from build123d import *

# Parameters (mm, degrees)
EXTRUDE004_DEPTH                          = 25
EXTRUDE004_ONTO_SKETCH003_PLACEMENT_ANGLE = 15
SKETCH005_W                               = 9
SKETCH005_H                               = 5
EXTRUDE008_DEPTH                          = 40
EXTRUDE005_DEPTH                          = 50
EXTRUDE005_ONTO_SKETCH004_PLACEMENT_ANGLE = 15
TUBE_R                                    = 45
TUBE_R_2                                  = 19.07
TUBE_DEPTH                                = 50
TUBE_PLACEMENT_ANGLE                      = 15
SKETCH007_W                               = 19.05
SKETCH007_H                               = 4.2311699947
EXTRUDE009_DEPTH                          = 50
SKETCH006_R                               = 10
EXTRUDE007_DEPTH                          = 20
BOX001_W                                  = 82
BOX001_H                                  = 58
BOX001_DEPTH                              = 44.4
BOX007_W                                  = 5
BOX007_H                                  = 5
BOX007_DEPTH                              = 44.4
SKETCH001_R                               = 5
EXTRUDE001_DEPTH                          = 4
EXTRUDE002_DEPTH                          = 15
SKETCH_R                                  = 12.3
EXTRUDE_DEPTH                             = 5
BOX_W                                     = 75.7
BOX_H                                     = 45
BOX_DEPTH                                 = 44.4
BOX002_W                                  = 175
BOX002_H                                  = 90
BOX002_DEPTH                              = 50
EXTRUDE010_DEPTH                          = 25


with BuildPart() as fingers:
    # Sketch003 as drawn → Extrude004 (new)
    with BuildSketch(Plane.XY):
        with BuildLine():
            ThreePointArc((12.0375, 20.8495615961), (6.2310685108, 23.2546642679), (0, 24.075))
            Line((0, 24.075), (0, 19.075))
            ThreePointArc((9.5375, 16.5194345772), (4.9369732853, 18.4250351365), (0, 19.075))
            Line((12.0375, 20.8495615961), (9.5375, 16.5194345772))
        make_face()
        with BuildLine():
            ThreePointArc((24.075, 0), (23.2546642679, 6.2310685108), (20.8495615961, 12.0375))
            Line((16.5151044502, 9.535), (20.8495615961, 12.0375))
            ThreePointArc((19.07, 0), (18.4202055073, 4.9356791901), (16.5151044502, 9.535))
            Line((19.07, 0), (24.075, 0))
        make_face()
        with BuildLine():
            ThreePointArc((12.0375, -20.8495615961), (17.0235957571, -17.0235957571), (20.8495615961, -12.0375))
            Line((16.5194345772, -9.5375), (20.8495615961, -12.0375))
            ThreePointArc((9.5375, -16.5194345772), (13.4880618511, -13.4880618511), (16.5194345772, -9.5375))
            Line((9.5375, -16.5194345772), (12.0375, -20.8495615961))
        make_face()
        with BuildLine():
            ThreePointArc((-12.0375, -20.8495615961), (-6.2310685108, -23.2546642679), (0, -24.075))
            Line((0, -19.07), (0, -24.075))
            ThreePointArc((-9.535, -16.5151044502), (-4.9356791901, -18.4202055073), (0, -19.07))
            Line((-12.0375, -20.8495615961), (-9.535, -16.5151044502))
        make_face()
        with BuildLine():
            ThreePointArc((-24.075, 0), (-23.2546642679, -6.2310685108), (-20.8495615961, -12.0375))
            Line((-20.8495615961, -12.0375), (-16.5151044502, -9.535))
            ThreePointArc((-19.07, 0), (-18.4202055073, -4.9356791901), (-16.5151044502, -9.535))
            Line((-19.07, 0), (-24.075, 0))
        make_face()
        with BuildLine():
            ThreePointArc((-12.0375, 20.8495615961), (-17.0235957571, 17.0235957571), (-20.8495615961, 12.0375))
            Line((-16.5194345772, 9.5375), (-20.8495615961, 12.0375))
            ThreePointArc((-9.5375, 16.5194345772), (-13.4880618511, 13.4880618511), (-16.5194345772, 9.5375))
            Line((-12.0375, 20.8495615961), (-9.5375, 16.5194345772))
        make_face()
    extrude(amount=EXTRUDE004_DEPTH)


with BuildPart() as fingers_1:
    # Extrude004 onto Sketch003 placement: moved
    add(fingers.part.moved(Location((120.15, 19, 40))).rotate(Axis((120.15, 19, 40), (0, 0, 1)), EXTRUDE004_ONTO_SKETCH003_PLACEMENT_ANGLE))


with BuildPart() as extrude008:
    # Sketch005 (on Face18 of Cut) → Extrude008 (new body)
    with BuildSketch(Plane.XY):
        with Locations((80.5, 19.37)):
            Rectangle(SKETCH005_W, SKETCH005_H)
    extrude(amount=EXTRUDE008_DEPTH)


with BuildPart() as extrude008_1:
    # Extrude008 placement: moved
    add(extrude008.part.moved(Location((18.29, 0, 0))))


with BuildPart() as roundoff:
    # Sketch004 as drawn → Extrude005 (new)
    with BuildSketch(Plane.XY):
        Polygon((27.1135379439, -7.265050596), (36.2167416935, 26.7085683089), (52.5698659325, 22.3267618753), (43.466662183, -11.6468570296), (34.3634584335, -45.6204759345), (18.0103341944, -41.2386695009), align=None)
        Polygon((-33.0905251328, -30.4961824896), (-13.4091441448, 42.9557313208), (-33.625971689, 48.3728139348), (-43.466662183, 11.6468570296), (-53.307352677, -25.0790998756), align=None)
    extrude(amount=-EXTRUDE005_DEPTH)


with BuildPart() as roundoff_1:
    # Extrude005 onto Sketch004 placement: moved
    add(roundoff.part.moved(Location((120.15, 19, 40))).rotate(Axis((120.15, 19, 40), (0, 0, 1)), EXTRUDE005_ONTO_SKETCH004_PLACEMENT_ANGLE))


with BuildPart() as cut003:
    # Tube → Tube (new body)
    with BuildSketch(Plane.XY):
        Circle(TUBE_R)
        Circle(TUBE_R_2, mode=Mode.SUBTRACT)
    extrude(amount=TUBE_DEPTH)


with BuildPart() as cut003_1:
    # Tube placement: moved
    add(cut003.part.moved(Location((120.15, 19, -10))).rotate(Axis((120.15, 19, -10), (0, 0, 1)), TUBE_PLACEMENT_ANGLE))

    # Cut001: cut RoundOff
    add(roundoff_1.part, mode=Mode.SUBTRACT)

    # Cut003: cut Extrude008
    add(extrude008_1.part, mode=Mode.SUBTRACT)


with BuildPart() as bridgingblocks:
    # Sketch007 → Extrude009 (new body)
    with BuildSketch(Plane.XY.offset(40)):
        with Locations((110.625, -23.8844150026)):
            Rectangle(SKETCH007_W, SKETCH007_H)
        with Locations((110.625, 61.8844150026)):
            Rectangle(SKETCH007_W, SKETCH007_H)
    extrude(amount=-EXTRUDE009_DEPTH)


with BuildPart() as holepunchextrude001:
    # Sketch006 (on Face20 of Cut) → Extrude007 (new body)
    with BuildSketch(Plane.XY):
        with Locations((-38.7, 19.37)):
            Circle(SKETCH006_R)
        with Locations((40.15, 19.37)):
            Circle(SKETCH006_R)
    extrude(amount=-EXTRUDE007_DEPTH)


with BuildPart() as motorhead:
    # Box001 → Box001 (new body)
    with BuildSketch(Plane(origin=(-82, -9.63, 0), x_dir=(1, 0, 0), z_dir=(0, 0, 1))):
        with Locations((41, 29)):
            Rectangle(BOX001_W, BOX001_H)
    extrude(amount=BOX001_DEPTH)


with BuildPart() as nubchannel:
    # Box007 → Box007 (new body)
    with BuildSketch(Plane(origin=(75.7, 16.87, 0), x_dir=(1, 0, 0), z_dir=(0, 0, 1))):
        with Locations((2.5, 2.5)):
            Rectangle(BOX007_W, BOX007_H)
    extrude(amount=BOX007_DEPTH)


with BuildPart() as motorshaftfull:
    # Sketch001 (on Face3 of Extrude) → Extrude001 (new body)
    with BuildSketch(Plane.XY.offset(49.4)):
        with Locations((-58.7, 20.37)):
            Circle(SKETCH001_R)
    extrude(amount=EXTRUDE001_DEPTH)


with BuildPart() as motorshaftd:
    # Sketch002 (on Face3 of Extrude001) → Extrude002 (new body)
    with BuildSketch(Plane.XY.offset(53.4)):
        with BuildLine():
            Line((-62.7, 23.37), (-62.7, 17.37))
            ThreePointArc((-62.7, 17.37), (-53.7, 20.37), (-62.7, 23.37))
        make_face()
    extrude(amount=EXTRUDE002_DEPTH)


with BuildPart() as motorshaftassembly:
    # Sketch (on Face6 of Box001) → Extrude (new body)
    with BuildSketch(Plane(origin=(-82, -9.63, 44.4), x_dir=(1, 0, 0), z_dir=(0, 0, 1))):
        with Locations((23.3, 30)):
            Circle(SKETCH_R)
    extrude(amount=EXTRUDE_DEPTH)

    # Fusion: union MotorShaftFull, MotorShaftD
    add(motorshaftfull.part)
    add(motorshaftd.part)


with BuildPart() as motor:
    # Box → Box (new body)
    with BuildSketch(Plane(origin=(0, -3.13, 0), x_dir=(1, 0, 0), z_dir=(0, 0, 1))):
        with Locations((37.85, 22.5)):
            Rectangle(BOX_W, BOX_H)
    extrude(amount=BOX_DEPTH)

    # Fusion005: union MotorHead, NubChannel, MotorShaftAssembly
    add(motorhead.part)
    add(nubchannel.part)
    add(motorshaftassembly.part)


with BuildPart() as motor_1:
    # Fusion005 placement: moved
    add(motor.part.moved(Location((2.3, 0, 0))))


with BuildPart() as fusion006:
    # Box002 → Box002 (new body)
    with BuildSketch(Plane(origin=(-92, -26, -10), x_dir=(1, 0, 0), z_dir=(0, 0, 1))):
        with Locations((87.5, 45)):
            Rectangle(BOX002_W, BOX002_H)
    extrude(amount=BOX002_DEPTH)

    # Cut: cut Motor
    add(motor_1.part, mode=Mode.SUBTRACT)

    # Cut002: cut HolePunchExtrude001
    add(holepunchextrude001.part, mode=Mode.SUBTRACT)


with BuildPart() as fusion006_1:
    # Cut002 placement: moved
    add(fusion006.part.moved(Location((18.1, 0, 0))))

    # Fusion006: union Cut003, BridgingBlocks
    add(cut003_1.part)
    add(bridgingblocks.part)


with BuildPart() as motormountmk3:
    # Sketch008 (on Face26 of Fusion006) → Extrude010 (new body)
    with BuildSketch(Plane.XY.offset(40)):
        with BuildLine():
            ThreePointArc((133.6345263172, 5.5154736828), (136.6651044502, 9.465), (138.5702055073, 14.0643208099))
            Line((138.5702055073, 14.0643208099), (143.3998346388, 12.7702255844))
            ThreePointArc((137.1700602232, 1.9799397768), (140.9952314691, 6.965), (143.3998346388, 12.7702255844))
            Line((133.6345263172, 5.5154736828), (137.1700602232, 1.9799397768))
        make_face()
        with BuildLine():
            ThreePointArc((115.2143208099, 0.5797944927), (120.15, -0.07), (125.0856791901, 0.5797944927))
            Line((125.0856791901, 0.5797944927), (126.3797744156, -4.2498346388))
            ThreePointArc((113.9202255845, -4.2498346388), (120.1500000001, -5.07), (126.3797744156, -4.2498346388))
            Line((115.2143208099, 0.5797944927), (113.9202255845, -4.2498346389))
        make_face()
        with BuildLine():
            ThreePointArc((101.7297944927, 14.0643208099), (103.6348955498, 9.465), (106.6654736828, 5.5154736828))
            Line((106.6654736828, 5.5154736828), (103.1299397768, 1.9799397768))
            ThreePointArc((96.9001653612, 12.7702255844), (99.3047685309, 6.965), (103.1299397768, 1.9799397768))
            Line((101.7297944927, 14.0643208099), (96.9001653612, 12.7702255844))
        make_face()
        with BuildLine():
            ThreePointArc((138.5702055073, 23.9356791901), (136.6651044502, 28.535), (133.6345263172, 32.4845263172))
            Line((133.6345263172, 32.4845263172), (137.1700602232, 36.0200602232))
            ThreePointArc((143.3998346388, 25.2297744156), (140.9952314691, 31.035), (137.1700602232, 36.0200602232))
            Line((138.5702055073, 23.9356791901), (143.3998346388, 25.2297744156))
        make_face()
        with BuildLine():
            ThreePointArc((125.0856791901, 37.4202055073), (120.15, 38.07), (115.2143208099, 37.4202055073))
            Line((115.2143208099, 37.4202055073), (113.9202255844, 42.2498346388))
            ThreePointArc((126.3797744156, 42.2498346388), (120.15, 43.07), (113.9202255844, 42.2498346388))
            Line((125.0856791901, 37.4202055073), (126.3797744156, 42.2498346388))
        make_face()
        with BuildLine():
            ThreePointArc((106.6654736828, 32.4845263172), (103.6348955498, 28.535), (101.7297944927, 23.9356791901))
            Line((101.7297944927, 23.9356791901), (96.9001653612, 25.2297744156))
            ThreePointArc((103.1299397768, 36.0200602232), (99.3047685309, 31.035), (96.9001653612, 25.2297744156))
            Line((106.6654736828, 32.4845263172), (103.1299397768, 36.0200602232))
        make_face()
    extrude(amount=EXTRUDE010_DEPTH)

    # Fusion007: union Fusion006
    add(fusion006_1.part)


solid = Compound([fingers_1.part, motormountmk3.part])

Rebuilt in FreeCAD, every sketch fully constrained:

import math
import FreeCAD as App
import Part
import Sketcher
from FreeCAD import Vector
Q = App.Units.Quantity


def add_polygon(sketch, points):
    """Adds a closed chain of lines whose ends are joined by coincident constraints."""
    first, n = sketch.GeometryCount, len(points)
    for a, b in zip(points, points[1:] + points[:1]):
        sketch.addGeometry(Part.LineSegment(App.Vector(*a, 0), App.Vector(*b, 0)), False)
    for i in range(n):
        sketch.addConstraint(Sketcher.Constraint("Coincident", first + i, 2, first + (i + 1) % n, 1))

doc = App.newDocument("Part")
body = doc.addObject("PartDesign::Body", "Body")
body.AllowCompound = True

# Sketch on XY plane
sketch1 = body.newObject("Sketcher::SketchObject", "Sketch")
sketch1.AttachmentSupport = (doc.getObject("XY_Plane"), [""])
sketch1.MapMode = "FlatFace"
sketch1.addGeometry([
    Part.ArcOfCircle(Part.Circle(Vector(0, 0, 0), Vector(0, 0, 1), 24), math.radians(60), math.radians(90)),  # 0
    Part.LineSegment(Vector(0, 24, 0), Vector(0, 19, 0)),  # 1
    Part.ArcOfCircle(Part.Circle(Vector(0, 0, 0), Vector(0, 0, 1), 19), math.radians(60), math.radians(90)),  # 2
    Part.LineSegment(Vector(10, 17, 0), Vector(12, 21, 0)),  # 3
    Part.ArcOfCircle(Part.Circle(Vector(0, 0, 0), Vector(0, 0, 1), 24), math.radians(0), math.radians(30)),  # 4
    Part.LineSegment(Vector(21, 12, 0), Vector(17, 10, 0)),  # 5
    Part.ArcOfCircle(Part.Circle(Vector(0, 0, 0), Vector(0, 0, 1), 19), math.radians(0), math.radians(30)),  # 6
    Part.LineSegment(Vector(19, 0, 0), Vector(24, 0, 0)),  # 7
    Part.ArcOfCircle(Part.Circle(Vector(0, 0, 0), Vector(0, 0, 1), 24), math.radians(-60), math.radians(-30)),  # 8
    Part.LineSegment(Vector(21, -12, 0), Vector(17, -10, 0)),  # 9
    Part.ArcOfCircle(Part.Circle(Vector(0, 0, 0), Vector(0, 0, 1), 19), math.radians(-60), math.radians(-30)),  # 10
    Part.LineSegment(Vector(10, -17, 0), Vector(12, -21, 0)),  # 11
    Part.ArcOfCircle(Part.Circle(Vector(0, 0, 0), Vector(0, 0, 1), 24), math.radians(-120), math.radians(-90)),  # 12
    Part.LineSegment(Vector(0, -24, 0), Vector(0, -19, 0)),  # 13
    Part.ArcOfCircle(Part.Circle(Vector(0, 0, 0), Vector(0, 0, 1), 19), math.radians(-120), math.radians(-90)),  # 14
    Part.LineSegment(Vector(-10, -17, 0), Vector(-12, -21, 0)),  # 15
    Part.ArcOfCircle(Part.Circle(Vector(0, 0, 0), Vector(0, 0, 1), 24), math.radians(180), math.radians(210)),  # 16
    Part.LineSegment(Vector(-21, -12, 0), Vector(-17, -10, 0)),  # 17
    Part.ArcOfCircle(Part.Circle(Vector(0, 0, 0), Vector(0, 0, 1), 19), math.radians(180), math.radians(210)),  # 18
    Part.LineSegment(Vector(-19, 0, 0), Vector(-24, 0, 0)),  # 19
    Part.ArcOfCircle(Part.Circle(Vector(0, 0, 0), Vector(0, 0, 1), 24), math.radians(120), math.radians(150)),  # 20
    Part.LineSegment(Vector(-21, 12, 0), Vector(-17, 10, 0)),  # 21
    Part.ArcOfCircle(Part.Circle(Vector(0, 0, 0), Vector(0, 0, 1), 19), math.radians(120), math.radians(150)),  # 22
    Part.LineSegment(Vector(-10, 17, 0), Vector(-12, 21, 0)),  # 23
], False)
sketch1.addConstraint([
    Sketcher.Constraint("Coincident", 0, 2, 1, 1),
    Sketcher.Constraint("Coincident", 1, 2, 2, 2),
    Sketcher.Constraint("Coincident", 2, 1, 3, 1),
    Sketcher.Constraint("Coincident", 3, 2, 0, 1),
    Sketcher.Constraint("Coincident", 4, 2, 5, 1),
    Sketcher.Constraint("Coincident", 5, 2, 6, 2),
    Sketcher.Constraint("Coincident", 6, 1, 7, 1),
    Sketcher.Constraint("Coincident", 7, 2, 4, 1),
    Sketcher.Constraint("Coincident", 8, 2, 9, 1),
    Sketcher.Constraint("Coincident", 9, 2, 10, 2),
    Sketcher.Constraint("Coincident", 10, 1, 11, 1),
    Sketcher.Constraint("Coincident", 11, 2, 8, 1),
    Sketcher.Constraint("Coincident", 12, 2, 13, 1),
    Sketcher.Constraint("Coincident", 13, 2, 14, 2),
    Sketcher.Constraint("Coincident", 14, 1, 15, 1),
    Sketcher.Constraint("Coincident", 15, 2, 12, 1),
    Sketcher.Constraint("Coincident", 16, 2, 17, 1),
    Sketcher.Constraint("Coincident", 17, 2, 18, 2),
    Sketcher.Constraint("Coincident", 18, 1, 19, 1),
    Sketcher.Constraint("Coincident", 19, 2, 16, 1),
    Sketcher.Constraint("Coincident", 20, 2, 21, 1),
    Sketcher.Constraint("Coincident", 21, 2, 22, 2),
    Sketcher.Constraint("Coincident", 22, 1, 23, 1),
    Sketcher.Constraint("Coincident", 23, 2, 20, 1),
    Sketcher.Constraint("Vertical", 1),
    Sketcher.Constraint("Horizontal", 7),
    Sketcher.Constraint("Vertical", 13),
    Sketcher.Constraint("Horizontal", 19),
    Sketcher.Constraint("Coincident", 0, 3, -1, 1),
    Sketcher.Constraint("Coincident", 2, 3, -1, 1),
    Sketcher.Constraint("Coincident", 4, 3, -1, 1),
    Sketcher.Constraint("Coincident", 6, 3, -1, 1),
    Sketcher.Constraint("Coincident", 8, 3, -1, 1),
    Sketcher.Constraint("Coincident", 10, 3, -1, 1),
    Sketcher.Constraint("Coincident", 12, 3, -1, 1),
    Sketcher.Constraint("Coincident", 14, 3, -1, 1),
    Sketcher.Constraint("Coincident", 16, 3, -1, 1),
    Sketcher.Constraint("Coincident", 18, 3, -1, 1),
    Sketcher.Constraint("Coincident", 20, 3, -1, 1),
    Sketcher.Constraint("Coincident", 22, 3, -1, 1),
    Sketcher.Constraint("Equal", 0, 4),
    Sketcher.Constraint("Equal", 4, 8),
    Sketcher.Constraint("Equal", 2, 10),
    Sketcher.Constraint("Equal", 8, 12),
    Sketcher.Constraint("Equal", 6, 14),
    Sketcher.Constraint("Equal", 12, 16),
    Sketcher.Constraint("Equal", 14, 18),
    Sketcher.Constraint("Equal", 16, 20),
    Sketcher.Constraint("Equal", 10, 22),
    Sketcher.Constraint("PointOnObject", 0, 2, -2),
    Sketcher.Constraint("PointOnObject", 6, 1, -1),
    Sketcher.Constraint("PointOnObject", 12, 2, -2),
    Sketcher.Constraint("PointOnObject", 18, 1, -1),
    Sketcher.Constraint("Perpendicular", 3, 9),
    Sketcher.Constraint("Perpendicular", 5, 11),
    Sketcher.Constraint("Perpendicular", 9, 15),
    Sketcher.Constraint("Perpendicular", 11, 17),
    Sketcher.Constraint("Perpendicular", 15, 21),
    Sketcher.Constraint("Perpendicular", 17, 23),
    Sketcher.Constraint("Horizontal", 11, 2, 15, 2),
    Sketcher.Constraint("Horizontal", 8, 2, 16, 2),
    Sketcher.Constraint("Horizontal", 4, 2, 20, 2),
    Sketcher.Constraint("Horizontal", 2, 1, 22, 1),
    Sketcher.Constraint("Horizontal", 3, 2, 23, 2),
    Sketcher.Constraint("Vertical", 4, 2, 8, 2),
    Sketcher.Constraint("Vertical", 2, 1, 10, 1),
    Sketcher.Constraint("DistanceY", 1, 2, 1, 1, Q("5 mm")),
    Sketcher.Constraint("Angle", 3, Q("60 deg")),
    Sketcher.Constraint("Radius", 6, Q("19.07 mm")),
    Sketcher.Constraint("Radius", 0, Q("24.075 mm")),
    Sketcher.Constraint("DistanceX", 19, 2, 14, 1, Q("14.54 mm")),
    Sketcher.Constraint("DistanceY", -1, 1, 5, 2, Q("9.535 mm")),
])
pad1 = body.newObject("PartDesign::Pad", "Pad")
pad1.Profile = sketch1
pad1.Length = 25
body2 = doc.addObject("PartDesign::Body", "Body001")
body2.AllowCompound = True
doc.recompute()

body.Placement = App.Placement(Vector(120.15, 19, 40), App.Rotation(Vector(0, 0, 1), 15))
boolean = body2.newObject("PartDesign::Boolean", "Boolean")
boolean.Type = "Fuse"
boolean.addObjects([body])
body3 = doc.addObject("PartDesign::Body", "Body002")

# Sketch on XY plane
sketch2 = body3.newObject("Sketcher::SketchObject", "Sketch001")
sketch2.AttachmentSupport = (doc.getObject("XY_Plane002"), [""])
sketch2.MapMode = "FlatFace"
add_polygon(sketch2, [(76, 22), (76, 17), (85, 17), (85, 22)])  # lines 0-3
sketch2.addConstraint([
    Sketcher.Constraint("Vertical", 0),
    Sketcher.Constraint("Horizontal", 1),
    Sketcher.Constraint("Vertical", 2),
    Sketcher.Constraint("Horizontal", 3),
    Sketcher.Constraint("DistanceX", 1, 1, 1, 2, Q("9 mm")),
    Sketcher.Constraint("DistanceY", 0, 2, 0, 1, Q("5 mm")),
    Sketcher.Constraint("DistanceX", -1, 1, 0, 2, Q("76 mm")),
    Sketcher.Constraint("DistanceY", -1, 1, 0, 2, Q("16.87 mm")),
])
pad2 = body3.newObject("PartDesign::Pad", "Pad001")
pad2.Profile = sketch2
pad2.Length = 40
body4 = doc.addObject("PartDesign::Body", "Body003")
doc.recompute()

body3.Placement = App.Placement(Vector(18.29, 0, 0), App.Rotation(Vector(0, 0, 1), 0))
boolean2 = body4.newObject("PartDesign::Boolean", "Boolean001")
boolean2.Type = "Fuse"
boolean2.addObjects([body3])
body5 = doc.addObject("PartDesign::Body", "Body004")
body5.AllowCompound = True

# Sketch on XY plane
sketch3 = body5.newObject("Sketcher::SketchObject", "Sketch002")
sketch3.AttachmentSupport = (doc.getObject("XY_Plane004"), [""])
sketch3.MapMode = "FlatFace"
add_polygon(sketch3, [(36, 27), (27, -7), (18, -41), (34, -46), (53, 22)])  # lines 0-4
add_polygon(sketch3, [(-33, -30), (-13, 43), (-34, 48), (-53, -25)])  # lines 5-8
sketch3.addConstraint([
    Sketcher.Constraint("Parallel", 0, 1),
    Sketcher.Constraint("Perpendicular", 1, 2),
    Sketcher.Constraint("Perpendicular", 2, 3),
    Sketcher.Constraint("Perpendicular", 3, 4),
    Sketcher.Constraint("Perpendicular", 4, 5),
    Sketcher.Constraint("Perpendicular", 5, 6),
    Sketcher.Constraint("Perpendicular", 6, 7),
    Sketcher.Constraint("Perpendicular", 7, 8),
    Sketcher.Constraint("Equal", 0, 1),
    Sketcher.Constraint("Angle", 0, Q("-105 deg")),
    Sketcher.Constraint("Distance", 2, Q("16.93 mm")),
    Sketcher.Constraint("Distance", 6, Q("20.93 mm")),
    Sketcher.Constraint("DistanceY", 7, 2, -1, 1, Q("25.0791 mm")),
    Sketcher.Constraint("DistanceY", 1, 2, 5, 2, Q("84.194401 mm")),
    Sketcher.Constraint("Distance", 0, Q("35.172078 mm")),
    Sketcher.Constraint("DistanceY", 0, 2, -1, 1, Q("7.265051 mm")),
    Sketcher.Constraint("DistanceX", -1, 1, 2, 2, Q("34.363458 mm")),
    Sketcher.Constraint("DistanceX", 6, 2, -1, 1, Q("33.625972 mm")),
])
pad3 = body5.newObject("PartDesign::Pad", "Pad002")
pad3.Profile = sketch3
pad3.Length = 50
pad3.Reversed = True
body6 = doc.addObject("PartDesign::Body", "Body005")
body6.AllowCompound = True
doc.recompute()

body5.Placement = App.Placement(Vector(120.15, 19, 40), App.Rotation(Vector(0, 0, 1), 15))
boolean3 = body6.newObject("PartDesign::Boolean", "Boolean002")
boolean3.Type = "Fuse"
boolean3.addObjects([body5])
body7 = doc.addObject("PartDesign::Body", "Body006")

# Sketch on XY plane
sketch4 = body7.newObject("Sketcher::SketchObject", "Sketch003")
sketch4.AttachmentSupport = (doc.getObject("XY_Plane006"), [""])
sketch4.MapMode = "FlatFace"
sketch4.addGeometry([
    Part.Circle(Vector(0, 0, 0), Vector(0, 0, 1), 45),
    Part.Circle(Vector(0, 0, 0), Vector(0, 0, 1), 19),
], False)
sketch4.addConstraint([
    Sketcher.Constraint("Coincident", 0, 3, -1, 1),
    Sketcher.Constraint("Coincident", 1, 3, -1, 1),
    Sketcher.Constraint("Diameter", 0, Q("90 mm")),
    Sketcher.Constraint("Diameter", 1, Q("38.14 mm")),
])
pad4 = body7.newObject("PartDesign::Pad", "Pad003")
pad4.Profile = sketch4
pad4.Length = 50
body8 = doc.addObject("PartDesign::Body", "Body007")
doc.recompute()

body7.Placement = App.Placement(Vector(120.15, 19, -10), App.Rotation(Vector(0, 0, 1), 15))
boolean4 = body8.newObject("PartDesign::Boolean", "Boolean003")
boolean4.Type = "Fuse"
boolean4.addObjects([body7])
doc.recompute()

boolean5 = body8.newObject("PartDesign::Boolean", "Boolean004")
boolean5.Type = "Cut"
boolean5.addObjects([body6])
doc.recompute()

boolean6 = body8.newObject("PartDesign::Boolean", "Boolean005")
boolean6.Type = "Cut"
boolean6.addObjects([body4])
body9 = doc.addObject("PartDesign::Body", "Body008")
body9.AllowCompound = True

# Sketch on XY plane
sketch5 = body9.newObject("Sketcher::SketchObject", "Sketch004")
sketch5.AttachmentSupport = (doc.getObject("XY_Plane008"), [""])
sketch5.MapMode = "FlatFace"
sketch5.AttachmentOffset = App.Placement(Vector(0, 0, 40), App.Rotation())
add_polygon(sketch5, [(101.1, -21.8), (101.1, -26), (120.2, -26), (120.2, -21.8)])  # lines 0-3
add_polygon(sketch5, [(101.1, 64), (101.1, 59.8), (120.2, 59.8), (120.2, 64)])  # lines 4-7
sketch5.addConstraint([
    Sketcher.Constraint("Vertical", 0),
    Sketcher.Constraint("Horizontal", 1),
    Sketcher.Constraint("Vertical", 2),
    Sketcher.Constraint("Horizontal", 3),
    Sketcher.Constraint("Vertical", 4),
    Sketcher.Constraint("Horizontal", 5),
    Sketcher.Constraint("Vertical", 6),
    Sketcher.Constraint("Horizontal", 7),
    Sketcher.Constraint("Vertical", 3, 2, 4, 2),
    Sketcher.Constraint("Vertical", 2, 2, 5, 2),
    Sketcher.Constraint("Equal", 2, 4),
    Sketcher.Constraint("DistanceY", 0, 2, -1, 1, Q("26 mm")),
    Sketcher.Constraint("DistanceY", -1, 1, 6, 2, Q("64 mm")),
    Sketcher.Constraint("DistanceX", 1, 1, 1, 2, Q("19.05 mm")),
    Sketcher.Constraint("DistanceX", -1, 1, 0, 2, Q("101.1 mm")),
    Sketcher.Constraint("DistanceY", 0, 2, 0, 1, Q("4.23117 mm")),
])
pad5 = body9.newObject("PartDesign::Pad", "Pad004")
pad5.Profile = sketch5
pad5.Length = 50
pad5.Reversed = True
body10 = doc.addObject("PartDesign::Body", "Body009")
body10.AllowCompound = True

# Sketch on XY plane
sketch6 = body10.newObject("Sketcher::SketchObject", "Sketch005")
sketch6.AttachmentSupport = (doc.getObject("XY_Plane009"), [""])
sketch6.MapMode = "FlatFace"
sketch6.addGeometry([
    Part.Circle(Vector(-39, 19, 0), Vector(0, 0, 1), 10),
    Part.Circle(Vector(40, 19, 0), Vector(0, 0, 1), 10),
], False)
sketch6.addConstraint([
    Sketcher.Constraint("Equal", 0, 1),
    Sketcher.Constraint("Horizontal", 0, 3, 1, 3),
    Sketcher.Constraint("Diameter", 0, Q("20 mm")),
    Sketcher.Constraint("DistanceX", 0, 3, -1, 1, Q("38.7 mm")),
    Sketcher.Constraint("DistanceY", -1, 1, 0, 3, Q("19.37 mm")),
    Sketcher.Constraint("DistanceX", -1, 1, 1, 3, Q("40.15 mm")),
])
pad6 = body10.newObject("PartDesign::Pad", "Pad005")
pad6.Profile = sketch6
pad6.Length = 20
pad6.Reversed = True
body11 = doc.addObject("PartDesign::Body", "Body010")

# Sketch on XY plane
sketch7 = body11.newObject("Sketcher::SketchObject", "Sketch006")
sketch7.AttachmentSupport = (doc.getObject("XY_Plane010"), [""])
sketch7.MapMode = "FlatFace"
add_polygon(sketch7, [(-82, 48), (-82, -10), (0, -10), (0, 48)])  # lines 0-3
sketch7.addConstraint([
    Sketcher.Constraint("Vertical", 0),
    Sketcher.Constraint("Horizontal", 1),
    Sketcher.Constraint("Vertical", 2),
    Sketcher.Constraint("Horizontal", 3),
    Sketcher.Constraint("PointOnObject", 1, 2, -2),
    Sketcher.Constraint("DistanceX", 1, 1, 1, 2, Q("82 mm")),
    Sketcher.Constraint("DistanceY", 0, 2, 0, 1, Q("58 mm")),
    Sketcher.Constraint("DistanceY", 0, 2, -1, 1, Q("9.63 mm")),
])
pad7 = body11.newObject("PartDesign::Pad", "Pad006")
pad7.Profile = sketch7
pad7.Length = 44.4
body12 = doc.addObject("PartDesign::Body", "Body011")

# Sketch on XY plane
sketch8 = body12.newObject("Sketcher::SketchObject", "Sketch007")
sketch8.AttachmentSupport = (doc.getObject("XY_Plane011"), [""])
sketch8.MapMode = "FlatFace"
add_polygon(sketch8, [(76, 22), (76, 17), (81, 17), (81, 22)])  # lines 0-3
sketch8.addConstraint([
    Sketcher.Constraint("Vertical", 0),
    Sketcher.Constraint("Horizontal", 1),
    Sketcher.Constraint("Vertical", 2),
    Sketcher.Constraint("Horizontal", 3),
    Sketcher.Constraint("Equal", 3, 0),
    Sketcher.Constraint("DistanceX", 1, 1, 1, 2, Q("5 mm")),
    Sketcher.Constraint("DistanceX", -1, 1, 0, 2, Q("75.7 mm")),
    Sketcher.Constraint("DistanceY", -1, 1, 0, 2, Q("16.87 mm")),
])
pad8 = body12.newObject("PartDesign::Pad", "Pad007")
pad8.Profile = sketch8
pad8.Length = 44.4
body13 = doc.addObject("PartDesign::Body", "Body012")

# Sketch on XY plane
sketch9 = body13.newObject("Sketcher::SketchObject", "Sketch008")
sketch9.AttachmentSupport = (doc.getObject("XY_Plane012"), [""])
sketch9.MapMode = "FlatFace"
sketch9.AttachmentOffset = App.Placement(Vector(0, 0, 49.4), App.Rotation())
sketch9.addGeometry(Part.Circle(Vector(-59, 20, 0), Vector(0, 0, 1), 5), False)
sketch9.addConstraint([
    Sketcher.Constraint("Diameter", 0, Q("10 mm")),
    Sketcher.Constraint("DistanceX", 0, 3, -1, 1, Q("58.7 mm")),
    Sketcher.Constraint("DistanceY", -1, 1, 0, 3, Q("20.37 mm")),
])
pad9 = body13.newObject("PartDesign::Pad", "Pad008")
pad9.Profile = sketch9
pad9.Length = 4
body14 = doc.addObject("PartDesign::Body", "Body013")

# Sketch on XY plane
sketch10 = body14.newObject("Sketcher::SketchObject", "Sketch009")
sketch10.AttachmentSupport = (doc.getObject("XY_Plane013"), [""])
sketch10.MapMode = "FlatFace"
sketch10.AttachmentOffset = App.Placement(Vector(0, 0, 53.4), App.Rotation())
sketch10.addGeometry([
    Part.LineSegment(Vector(-63, 23, 0), Vector(-63, 17, 0)),
    Part.ArcOfCircle(Part.Circle(Vector(-59, 20, 0), Vector(0, 0, 1), 5), math.radians(-143), math.radians(143)),
], False)
sketch10.addConstraint([
    Sketcher.Constraint("Coincident", 0, 1, 1, 2),
    Sketcher.Constraint("Coincident", 1, 1, 0, 2),
    Sketcher.Constraint("Vertical", 0),
    Sketcher.Constraint("Radius", 1, Q("5 mm")),
    Sketcher.Constraint("DistanceY", 0, 2, 0, 1, Q("6 mm")),
    Sketcher.Constraint("DistanceX", 1, 3, -1, 1, Q("58.7 mm")),
    Sketcher.Constraint("DistanceY", -1, 1, 1, 3, Q("20.37 mm")),
])
pad10 = body14.newObject("PartDesign::Pad", "Pad009")
pad10.Profile = sketch10
pad10.Length = 15
body15 = doc.addObject("PartDesign::Body", "Body014")

# Sketch on XY plane
sketch11 = body15.newObject("Sketcher::SketchObject", "Sketch010")
sketch11.AttachmentSupport = (doc.getObject("XY_Plane014"), [""])
sketch11.MapMode = "FlatFace"
sketch11.AttachmentOffset = App.Placement(Vector(0, 0, 44.4), App.Rotation())
sketch11.addGeometry(Part.Circle(Vector(-59, 20, 0), Vector(0, 0, 1), 12), False)
sketch11.addConstraint([
    Sketcher.Constraint("Diameter", 0, Q("24.6 mm")),
    Sketcher.Constraint("DistanceX", 0, 3, -1, 1, Q("58.7 mm")),
    Sketcher.Constraint("DistanceY", -1, 1, 0, 3, Q("20.37 mm")),
])
pad11 = body15.newObject("PartDesign::Pad", "Pad010")
pad11.Profile = sketch11
pad11.Length = 5
doc.recompute()

boolean7 = body15.newObject("PartDesign::Boolean", "Boolean006")
boolean7.Type = "Fuse"
boolean7.addObjects([body13])
doc.recompute()

boolean8 = body15.newObject("PartDesign::Boolean", "Boolean007")
boolean8.Type = "Fuse"
boolean8.addObjects([body14])
body16 = doc.addObject("PartDesign::Body", "Body015")

# Sketch on XY plane
sketch12 = body16.newObject("Sketcher::SketchObject", "Sketch011")
sketch12.AttachmentSupport = (doc.getObject("XY_Plane015"), [""])
sketch12.MapMode = "FlatFace"
add_polygon(sketch12, [(0, 42), (0, -3), (76, -3), (76, 42)])  # lines 0-3
sketch12.addConstraint([
    Sketcher.Constraint("Vertical", 0),
    Sketcher.Constraint("Horizontal", 1),
    Sketcher.Constraint("Vertical", 2),
    Sketcher.Constraint("Horizontal", 3),
    Sketcher.Constraint("PointOnObject", 0, 2, -2),
    Sketcher.Constraint("DistanceY", 0, 2, 0, 1, Q("45 mm")),
    Sketcher.Constraint("DistanceX", 1, 1, 1, 2, Q("75.7 mm")),
    Sketcher.Constraint("DistanceY", 0, 2, -1, 1, Q("3.13 mm")),
])
pad12 = body16.newObject("PartDesign::Pad", "Pad011")
pad12.Profile = sketch12
pad12.Length = 44.4
doc.recompute()

boolean9 = body16.newObject("PartDesign::Boolean", "Boolean008")
boolean9.Type = "Fuse"
boolean9.addObjects([body11])
doc.recompute()

boolean10 = body16.newObject("PartDesign::Boolean", "Boolean009")
boolean10.Type = "Fuse"
boolean10.addObjects([body12])
doc.recompute()

boolean11 = body16.newObject("PartDesign::Boolean", "Boolean010")
boolean11.Type = "Fuse"
boolean11.addObjects([body15])
body17 = doc.addObject("PartDesign::Body", "Body016")
doc.recompute()

body16.Placement = App.Placement(Vector(2.3, 0, 0), App.Rotation(Vector(0, 0, 1), 0))
boolean12 = body17.newObject("PartDesign::Boolean", "Boolean011")
boolean12.Type = "Fuse"
boolean12.addObjects([body16])
body18 = doc.addObject("PartDesign::Body", "Body017")

# Sketch on XY plane
sketch13 = body18.newObject("Sketcher::SketchObject", "Sketch012")
sketch13.AttachmentSupport = (doc.getObject("XY_Plane017"), [""])
sketch13.MapMode = "FlatFace"
sketch13.AttachmentOffset = App.Placement(Vector(0, 0, -10), App.Rotation())
add_polygon(sketch13, [(-92, 64), (-92, -26), (83, -26), (83, 64)])  # lines 0-3
sketch13.addConstraint([
    Sketcher.Constraint("Vertical", 0),
    Sketcher.Constraint("Horizontal", 1),
    Sketcher.Constraint("Vertical", 2),
    Sketcher.Constraint("Horizontal", 3),
    Sketcher.Constraint("DistanceX", 1, 1, 1, 2, Q("175 mm")),
    Sketcher.Constraint("DistanceY", 0, 2, 0, 1, Q("90 mm")),
    Sketcher.Constraint("DistanceX", 0, 2, -1, 1, Q("92 mm")),
    Sketcher.Constraint("DistanceY", 0, 2, -1, 1, Q("26 mm")),
])
pad13 = body18.newObject("PartDesign::Pad", "Pad012")
pad13.Profile = sketch13
pad13.Length = 50
doc.recompute()

boolean13 = body18.newObject("PartDesign::Boolean", "Boolean012")
boolean13.Type = "Cut"
boolean13.addObjects([body17])
doc.recompute()

boolean14 = body18.newObject("PartDesign::Boolean", "Boolean013")
boolean14.Type = "Cut"
boolean14.addObjects([body10])
body19 = doc.addObject("PartDesign::Body", "Body018")
doc.recompute()

body18.Placement = App.Placement(Vector(18.1, 0, 0), App.Rotation(Vector(0, 0, 1), 0))
boolean15 = body19.newObject("PartDesign::Boolean", "Boolean014")
boolean15.Type = "Fuse"
boolean15.addObjects([body18])
doc.recompute()

boolean16 = body19.newObject("PartDesign::Boolean", "Boolean015")
boolean16.Type = "Fuse"
boolean16.addObjects([body8])
doc.recompute()

boolean17 = body19.newObject("PartDesign::Boolean", "Boolean016")
boolean17.Type = "Fuse"
boolean17.addObjects([body9])
body20 = doc.addObject("PartDesign::Body", "Body019")
body20.AllowCompound = True

# Sketch on XY plane
sketch14 = body20.newObject("Sketcher::SketchObject", "Sketch013")
sketch14.AttachmentSupport = (doc.getObject("XY_Plane019"), [""])
sketch14.MapMode = "FlatFace"
sketch14.AttachmentOffset = App.Placement(Vector(0, 0, 40), App.Rotation())
sketch14.addGeometry([
    Part.ArcOfCircle(Part.Circle(Vector(120, 19, 0), Vector(0, 0, 1), 19), math.radians(-45), math.radians(-15)),  # 0
    Part.LineSegment(Vector(134, 6, 0), Vector(137, 2, 0)),  # 1
    Part.ArcOfCircle(Part.Circle(Vector(120, 19, 0), Vector(0, 0, 1), 24), math.radians(-45), math.radians(-15)),  # 2
    Part.LineSegment(Vector(143, 13, 0), Vector(139, 14, 0)),  # 3
    Part.ArcOfCircle(Part.Circle(Vector(120, 19, 0), Vector(0, 0, 1), 19), math.radians(-105), math.radians(-75)),  # 4
    Part.LineSegment(Vector(115, 1, 0), Vector(114, -4, 0)),  # 5
    Part.ArcOfCircle(Part.Circle(Vector(120, 19, 0), Vector(0, 0, 1), 24), math.radians(-105), math.radians(-75)),  # 6
    Part.LineSegment(Vector(126, -4, 0), Vector(125, 1, 0)),  # 7
    Part.ArcOfCircle(Part.Circle(Vector(120, 19, 0), Vector(0, 0, 1), 19), math.radians(-165), math.radians(-135)),  # 8
    Part.LineSegment(Vector(102, 14, 0), Vector(97, 13, 0)),  # 9
    Part.ArcOfCircle(Part.Circle(Vector(120, 19, 0), Vector(0, 0, 1), 24), math.radians(-165), math.radians(-135)),  # 10
    Part.LineSegment(Vector(103, 2, 0), Vector(107, 6, 0)),  # 11
    Part.ArcOfCircle(Part.Circle(Vector(120, 19, 0), Vector(0, 0, 1), 19), math.radians(15), math.radians(45)),  # 12
    Part.LineSegment(Vector(139, 24, 0), Vector(143, 25, 0)),  # 13
    Part.ArcOfCircle(Part.Circle(Vector(120, 19, 0), Vector(0, 0, 1), 24), math.radians(15), math.radians(45)),  # 14
    Part.LineSegment(Vector(137, 36, 0), Vector(134, 32, 0)),  # 15
    Part.ArcOfCircle(Part.Circle(Vector(120, 19, 0), Vector(0, 0, 1), 19), math.radians(75), math.radians(105)),  # 16
    Part.LineSegment(Vector(125, 37, 0), Vector(126, 42, 0)),  # 17
    Part.ArcOfCircle(Part.Circle(Vector(120, 19, 0), Vector(0, 0, 1), 24), math.radians(75), math.radians(105)),  # 18
    Part.LineSegment(Vector(114, 42, 0), Vector(115, 37, 0)),  # 19
    Part.ArcOfCircle(Part.Circle(Vector(120, 19, 0), Vector(0, 0, 1), 19), math.radians(135), math.radians(165)),  # 20
    Part.LineSegment(Vector(107, 32, 0), Vector(103, 36, 0)),  # 21
    Part.ArcOfCircle(Part.Circle(Vector(120, 19, 0), Vector(0, 0, 1), 24), math.radians(135), math.radians(165)),  # 22
    Part.LineSegment(Vector(97, 25, 0), Vector(102, 24, 0)),  # 23
], False)
sketch14.addConstraint([
    Sketcher.Constraint("Coincident", 0, 1, 1, 1),
    Sketcher.Constraint("Coincident", 1, 2, 2, 1),
    Sketcher.Constraint("Coincident", 2, 2, 3, 1),
    Sketcher.Constraint("Coincident", 3, 2, 0, 2),
    Sketcher.Constraint("Coincident", 4, 1, 5, 1),
    Sketcher.Constraint("Coincident", 5, 2, 6, 1),
    Sketcher.Constraint("Coincident", 6, 2, 7, 1),
    Sketcher.Constraint("Coincident", 7, 2, 4, 2),
    Sketcher.Constraint("Coincident", 8, 1, 9, 1),
    Sketcher.Constraint("Coincident", 9, 2, 10, 1),
    Sketcher.Constraint("Coincident", 10, 2, 11, 1),
    Sketcher.Constraint("Coincident", 11, 2, 8, 2),
    Sketcher.Constraint("Coincident", 12, 1, 13, 1),
    Sketcher.Constraint("Coincident", 13, 2, 14, 1),
    Sketcher.Constraint("Coincident", 14, 2, 15, 1),
    Sketcher.Constraint("Coincident", 15, 2, 12, 2),
    Sketcher.Constraint("Coincident", 16, 1, 17, 1),
    Sketcher.Constraint("Coincident", 17, 2, 18, 1),
    Sketcher.Constraint("Coincident", 18, 2, 19, 1),
    Sketcher.Constraint("Coincident", 19, 2, 16, 2),
    Sketcher.Constraint("Coincident", 20, 1, 21, 1),
    Sketcher.Constraint("Coincident", 21, 2, 22, 1),
    Sketcher.Constraint("Coincident", 22, 2, 23, 1),
    Sketcher.Constraint("Coincident", 23, 2, 20, 2),
    Sketcher.Constraint("Coincident", 2, 3, 0, 3),
    Sketcher.Constraint("Coincident", 4, 3, 0, 3),
    Sketcher.Constraint("Coincident", 6, 3, 0, 3),
    Sketcher.Constraint("Coincident", 8, 3, 0, 3),
    Sketcher.Constraint("Coincident", 10, 3, 0, 3),
    Sketcher.Constraint("Coincident", 12, 3, 0, 3),
    Sketcher.Constraint("Coincident", 14, 3, 0, 3),
    Sketcher.Constraint("Coincident", 16, 3, 0, 3),
    Sketcher.Constraint("Coincident", 18, 3, 0, 3),
    Sketcher.Constraint("Coincident", 20, 3, 0, 3),
    Sketcher.Constraint("Coincident", 22, 3, 0, 3),
    Sketcher.Constraint("Equal", 0, 4),
    Sketcher.Constraint("Equal", 2, 6),
    Sketcher.Constraint("Equal", 4, 8),
    Sketcher.Constraint("Equal", 6, 10),
    Sketcher.Constraint("Equal", 8, 12),
    Sketcher.Constraint("Equal", 10, 14),
    Sketcher.Constraint("Equal", 12, 16),
    Sketcher.Constraint("Equal", 14, 18),
    Sketcher.Constraint("Equal", 16, 20),
    Sketcher.Constraint("Equal", 18, 22),
    Sketcher.Constraint("Perpendicular", 3, 5),
    Sketcher.Constraint("Perpendicular", 7, 9),
    Sketcher.Constraint("Perpendicular", 1, 11),
    Sketcher.Constraint("Parallel", 9, 13),
    Sketcher.Constraint("Parallel", 11, 15),
    Sketcher.Constraint("Parallel", 5, 17),
    Sketcher.Constraint("Perpendicular", 13, 19),
    Sketcher.Constraint("Perpendicular", 15, 21),
    Sketcher.Constraint("Perpendicular", 17, 23),
    Sketcher.Constraint("Horizontal", 5, 2, 6, 2),
    Sketcher.Constraint("Horizontal", 4, 1, 7, 2),
    Sketcher.Constraint("Horizontal", 3, 2, 8, 1),
    Sketcher.Constraint("Horizontal", 1, 2, 10, 2),
    Sketcher.Constraint("Horizontal", 0, 1, 11, 2),
    Sketcher.Constraint("Horizontal", 17, 2, 18, 2),
    Sketcher.Constraint("Horizontal", 15, 2, 20, 1),
    Sketcher.Constraint("Horizontal", 13, 2, 22, 2),
    Sketcher.Constraint("Vertical", 3, 2, 12, 1),
    Sketcher.Constraint("Vertical", 1, 2, 14, 2),
    Sketcher.Constraint("Vertical", 7, 2, 16, 1),
    Sketcher.Constraint("Angle", 3, Q("165 deg")),
    Sketcher.Constraint("Radius", 0, Q("19.07 mm")),
    Sketcher.Constraint("Radius", 2, Q("24.07 mm")),
    Sketcher.Constraint("DistanceY", -1, 1, 0, 3, Q("19 mm")),
    Sketcher.Constraint("DistanceX", -1, 1, 0, 3, Q("120.15 mm")),
    Sketcher.Constraint("DistanceX", 5, 2, 0, 1, Q("19.714301 mm")),
    Sketcher.Constraint("DistanceY", 0, 1, 13, 2, Q("19.714301 mm")),
    Sketcher.Constraint("DistanceX", -1, 1, 1, 2, Q("137.17006 mm")),
])
pad14 = body20.newObject("PartDesign::Pad", "Pad013")
pad14.Profile = sketch14
pad14.Length = 25
doc.recompute()

boolean18 = body20.newObject("PartDesign::Boolean", "Boolean017")
boolean18.Type = "Fuse"
boolean18.addObjects([body19])

doc.recompute()
